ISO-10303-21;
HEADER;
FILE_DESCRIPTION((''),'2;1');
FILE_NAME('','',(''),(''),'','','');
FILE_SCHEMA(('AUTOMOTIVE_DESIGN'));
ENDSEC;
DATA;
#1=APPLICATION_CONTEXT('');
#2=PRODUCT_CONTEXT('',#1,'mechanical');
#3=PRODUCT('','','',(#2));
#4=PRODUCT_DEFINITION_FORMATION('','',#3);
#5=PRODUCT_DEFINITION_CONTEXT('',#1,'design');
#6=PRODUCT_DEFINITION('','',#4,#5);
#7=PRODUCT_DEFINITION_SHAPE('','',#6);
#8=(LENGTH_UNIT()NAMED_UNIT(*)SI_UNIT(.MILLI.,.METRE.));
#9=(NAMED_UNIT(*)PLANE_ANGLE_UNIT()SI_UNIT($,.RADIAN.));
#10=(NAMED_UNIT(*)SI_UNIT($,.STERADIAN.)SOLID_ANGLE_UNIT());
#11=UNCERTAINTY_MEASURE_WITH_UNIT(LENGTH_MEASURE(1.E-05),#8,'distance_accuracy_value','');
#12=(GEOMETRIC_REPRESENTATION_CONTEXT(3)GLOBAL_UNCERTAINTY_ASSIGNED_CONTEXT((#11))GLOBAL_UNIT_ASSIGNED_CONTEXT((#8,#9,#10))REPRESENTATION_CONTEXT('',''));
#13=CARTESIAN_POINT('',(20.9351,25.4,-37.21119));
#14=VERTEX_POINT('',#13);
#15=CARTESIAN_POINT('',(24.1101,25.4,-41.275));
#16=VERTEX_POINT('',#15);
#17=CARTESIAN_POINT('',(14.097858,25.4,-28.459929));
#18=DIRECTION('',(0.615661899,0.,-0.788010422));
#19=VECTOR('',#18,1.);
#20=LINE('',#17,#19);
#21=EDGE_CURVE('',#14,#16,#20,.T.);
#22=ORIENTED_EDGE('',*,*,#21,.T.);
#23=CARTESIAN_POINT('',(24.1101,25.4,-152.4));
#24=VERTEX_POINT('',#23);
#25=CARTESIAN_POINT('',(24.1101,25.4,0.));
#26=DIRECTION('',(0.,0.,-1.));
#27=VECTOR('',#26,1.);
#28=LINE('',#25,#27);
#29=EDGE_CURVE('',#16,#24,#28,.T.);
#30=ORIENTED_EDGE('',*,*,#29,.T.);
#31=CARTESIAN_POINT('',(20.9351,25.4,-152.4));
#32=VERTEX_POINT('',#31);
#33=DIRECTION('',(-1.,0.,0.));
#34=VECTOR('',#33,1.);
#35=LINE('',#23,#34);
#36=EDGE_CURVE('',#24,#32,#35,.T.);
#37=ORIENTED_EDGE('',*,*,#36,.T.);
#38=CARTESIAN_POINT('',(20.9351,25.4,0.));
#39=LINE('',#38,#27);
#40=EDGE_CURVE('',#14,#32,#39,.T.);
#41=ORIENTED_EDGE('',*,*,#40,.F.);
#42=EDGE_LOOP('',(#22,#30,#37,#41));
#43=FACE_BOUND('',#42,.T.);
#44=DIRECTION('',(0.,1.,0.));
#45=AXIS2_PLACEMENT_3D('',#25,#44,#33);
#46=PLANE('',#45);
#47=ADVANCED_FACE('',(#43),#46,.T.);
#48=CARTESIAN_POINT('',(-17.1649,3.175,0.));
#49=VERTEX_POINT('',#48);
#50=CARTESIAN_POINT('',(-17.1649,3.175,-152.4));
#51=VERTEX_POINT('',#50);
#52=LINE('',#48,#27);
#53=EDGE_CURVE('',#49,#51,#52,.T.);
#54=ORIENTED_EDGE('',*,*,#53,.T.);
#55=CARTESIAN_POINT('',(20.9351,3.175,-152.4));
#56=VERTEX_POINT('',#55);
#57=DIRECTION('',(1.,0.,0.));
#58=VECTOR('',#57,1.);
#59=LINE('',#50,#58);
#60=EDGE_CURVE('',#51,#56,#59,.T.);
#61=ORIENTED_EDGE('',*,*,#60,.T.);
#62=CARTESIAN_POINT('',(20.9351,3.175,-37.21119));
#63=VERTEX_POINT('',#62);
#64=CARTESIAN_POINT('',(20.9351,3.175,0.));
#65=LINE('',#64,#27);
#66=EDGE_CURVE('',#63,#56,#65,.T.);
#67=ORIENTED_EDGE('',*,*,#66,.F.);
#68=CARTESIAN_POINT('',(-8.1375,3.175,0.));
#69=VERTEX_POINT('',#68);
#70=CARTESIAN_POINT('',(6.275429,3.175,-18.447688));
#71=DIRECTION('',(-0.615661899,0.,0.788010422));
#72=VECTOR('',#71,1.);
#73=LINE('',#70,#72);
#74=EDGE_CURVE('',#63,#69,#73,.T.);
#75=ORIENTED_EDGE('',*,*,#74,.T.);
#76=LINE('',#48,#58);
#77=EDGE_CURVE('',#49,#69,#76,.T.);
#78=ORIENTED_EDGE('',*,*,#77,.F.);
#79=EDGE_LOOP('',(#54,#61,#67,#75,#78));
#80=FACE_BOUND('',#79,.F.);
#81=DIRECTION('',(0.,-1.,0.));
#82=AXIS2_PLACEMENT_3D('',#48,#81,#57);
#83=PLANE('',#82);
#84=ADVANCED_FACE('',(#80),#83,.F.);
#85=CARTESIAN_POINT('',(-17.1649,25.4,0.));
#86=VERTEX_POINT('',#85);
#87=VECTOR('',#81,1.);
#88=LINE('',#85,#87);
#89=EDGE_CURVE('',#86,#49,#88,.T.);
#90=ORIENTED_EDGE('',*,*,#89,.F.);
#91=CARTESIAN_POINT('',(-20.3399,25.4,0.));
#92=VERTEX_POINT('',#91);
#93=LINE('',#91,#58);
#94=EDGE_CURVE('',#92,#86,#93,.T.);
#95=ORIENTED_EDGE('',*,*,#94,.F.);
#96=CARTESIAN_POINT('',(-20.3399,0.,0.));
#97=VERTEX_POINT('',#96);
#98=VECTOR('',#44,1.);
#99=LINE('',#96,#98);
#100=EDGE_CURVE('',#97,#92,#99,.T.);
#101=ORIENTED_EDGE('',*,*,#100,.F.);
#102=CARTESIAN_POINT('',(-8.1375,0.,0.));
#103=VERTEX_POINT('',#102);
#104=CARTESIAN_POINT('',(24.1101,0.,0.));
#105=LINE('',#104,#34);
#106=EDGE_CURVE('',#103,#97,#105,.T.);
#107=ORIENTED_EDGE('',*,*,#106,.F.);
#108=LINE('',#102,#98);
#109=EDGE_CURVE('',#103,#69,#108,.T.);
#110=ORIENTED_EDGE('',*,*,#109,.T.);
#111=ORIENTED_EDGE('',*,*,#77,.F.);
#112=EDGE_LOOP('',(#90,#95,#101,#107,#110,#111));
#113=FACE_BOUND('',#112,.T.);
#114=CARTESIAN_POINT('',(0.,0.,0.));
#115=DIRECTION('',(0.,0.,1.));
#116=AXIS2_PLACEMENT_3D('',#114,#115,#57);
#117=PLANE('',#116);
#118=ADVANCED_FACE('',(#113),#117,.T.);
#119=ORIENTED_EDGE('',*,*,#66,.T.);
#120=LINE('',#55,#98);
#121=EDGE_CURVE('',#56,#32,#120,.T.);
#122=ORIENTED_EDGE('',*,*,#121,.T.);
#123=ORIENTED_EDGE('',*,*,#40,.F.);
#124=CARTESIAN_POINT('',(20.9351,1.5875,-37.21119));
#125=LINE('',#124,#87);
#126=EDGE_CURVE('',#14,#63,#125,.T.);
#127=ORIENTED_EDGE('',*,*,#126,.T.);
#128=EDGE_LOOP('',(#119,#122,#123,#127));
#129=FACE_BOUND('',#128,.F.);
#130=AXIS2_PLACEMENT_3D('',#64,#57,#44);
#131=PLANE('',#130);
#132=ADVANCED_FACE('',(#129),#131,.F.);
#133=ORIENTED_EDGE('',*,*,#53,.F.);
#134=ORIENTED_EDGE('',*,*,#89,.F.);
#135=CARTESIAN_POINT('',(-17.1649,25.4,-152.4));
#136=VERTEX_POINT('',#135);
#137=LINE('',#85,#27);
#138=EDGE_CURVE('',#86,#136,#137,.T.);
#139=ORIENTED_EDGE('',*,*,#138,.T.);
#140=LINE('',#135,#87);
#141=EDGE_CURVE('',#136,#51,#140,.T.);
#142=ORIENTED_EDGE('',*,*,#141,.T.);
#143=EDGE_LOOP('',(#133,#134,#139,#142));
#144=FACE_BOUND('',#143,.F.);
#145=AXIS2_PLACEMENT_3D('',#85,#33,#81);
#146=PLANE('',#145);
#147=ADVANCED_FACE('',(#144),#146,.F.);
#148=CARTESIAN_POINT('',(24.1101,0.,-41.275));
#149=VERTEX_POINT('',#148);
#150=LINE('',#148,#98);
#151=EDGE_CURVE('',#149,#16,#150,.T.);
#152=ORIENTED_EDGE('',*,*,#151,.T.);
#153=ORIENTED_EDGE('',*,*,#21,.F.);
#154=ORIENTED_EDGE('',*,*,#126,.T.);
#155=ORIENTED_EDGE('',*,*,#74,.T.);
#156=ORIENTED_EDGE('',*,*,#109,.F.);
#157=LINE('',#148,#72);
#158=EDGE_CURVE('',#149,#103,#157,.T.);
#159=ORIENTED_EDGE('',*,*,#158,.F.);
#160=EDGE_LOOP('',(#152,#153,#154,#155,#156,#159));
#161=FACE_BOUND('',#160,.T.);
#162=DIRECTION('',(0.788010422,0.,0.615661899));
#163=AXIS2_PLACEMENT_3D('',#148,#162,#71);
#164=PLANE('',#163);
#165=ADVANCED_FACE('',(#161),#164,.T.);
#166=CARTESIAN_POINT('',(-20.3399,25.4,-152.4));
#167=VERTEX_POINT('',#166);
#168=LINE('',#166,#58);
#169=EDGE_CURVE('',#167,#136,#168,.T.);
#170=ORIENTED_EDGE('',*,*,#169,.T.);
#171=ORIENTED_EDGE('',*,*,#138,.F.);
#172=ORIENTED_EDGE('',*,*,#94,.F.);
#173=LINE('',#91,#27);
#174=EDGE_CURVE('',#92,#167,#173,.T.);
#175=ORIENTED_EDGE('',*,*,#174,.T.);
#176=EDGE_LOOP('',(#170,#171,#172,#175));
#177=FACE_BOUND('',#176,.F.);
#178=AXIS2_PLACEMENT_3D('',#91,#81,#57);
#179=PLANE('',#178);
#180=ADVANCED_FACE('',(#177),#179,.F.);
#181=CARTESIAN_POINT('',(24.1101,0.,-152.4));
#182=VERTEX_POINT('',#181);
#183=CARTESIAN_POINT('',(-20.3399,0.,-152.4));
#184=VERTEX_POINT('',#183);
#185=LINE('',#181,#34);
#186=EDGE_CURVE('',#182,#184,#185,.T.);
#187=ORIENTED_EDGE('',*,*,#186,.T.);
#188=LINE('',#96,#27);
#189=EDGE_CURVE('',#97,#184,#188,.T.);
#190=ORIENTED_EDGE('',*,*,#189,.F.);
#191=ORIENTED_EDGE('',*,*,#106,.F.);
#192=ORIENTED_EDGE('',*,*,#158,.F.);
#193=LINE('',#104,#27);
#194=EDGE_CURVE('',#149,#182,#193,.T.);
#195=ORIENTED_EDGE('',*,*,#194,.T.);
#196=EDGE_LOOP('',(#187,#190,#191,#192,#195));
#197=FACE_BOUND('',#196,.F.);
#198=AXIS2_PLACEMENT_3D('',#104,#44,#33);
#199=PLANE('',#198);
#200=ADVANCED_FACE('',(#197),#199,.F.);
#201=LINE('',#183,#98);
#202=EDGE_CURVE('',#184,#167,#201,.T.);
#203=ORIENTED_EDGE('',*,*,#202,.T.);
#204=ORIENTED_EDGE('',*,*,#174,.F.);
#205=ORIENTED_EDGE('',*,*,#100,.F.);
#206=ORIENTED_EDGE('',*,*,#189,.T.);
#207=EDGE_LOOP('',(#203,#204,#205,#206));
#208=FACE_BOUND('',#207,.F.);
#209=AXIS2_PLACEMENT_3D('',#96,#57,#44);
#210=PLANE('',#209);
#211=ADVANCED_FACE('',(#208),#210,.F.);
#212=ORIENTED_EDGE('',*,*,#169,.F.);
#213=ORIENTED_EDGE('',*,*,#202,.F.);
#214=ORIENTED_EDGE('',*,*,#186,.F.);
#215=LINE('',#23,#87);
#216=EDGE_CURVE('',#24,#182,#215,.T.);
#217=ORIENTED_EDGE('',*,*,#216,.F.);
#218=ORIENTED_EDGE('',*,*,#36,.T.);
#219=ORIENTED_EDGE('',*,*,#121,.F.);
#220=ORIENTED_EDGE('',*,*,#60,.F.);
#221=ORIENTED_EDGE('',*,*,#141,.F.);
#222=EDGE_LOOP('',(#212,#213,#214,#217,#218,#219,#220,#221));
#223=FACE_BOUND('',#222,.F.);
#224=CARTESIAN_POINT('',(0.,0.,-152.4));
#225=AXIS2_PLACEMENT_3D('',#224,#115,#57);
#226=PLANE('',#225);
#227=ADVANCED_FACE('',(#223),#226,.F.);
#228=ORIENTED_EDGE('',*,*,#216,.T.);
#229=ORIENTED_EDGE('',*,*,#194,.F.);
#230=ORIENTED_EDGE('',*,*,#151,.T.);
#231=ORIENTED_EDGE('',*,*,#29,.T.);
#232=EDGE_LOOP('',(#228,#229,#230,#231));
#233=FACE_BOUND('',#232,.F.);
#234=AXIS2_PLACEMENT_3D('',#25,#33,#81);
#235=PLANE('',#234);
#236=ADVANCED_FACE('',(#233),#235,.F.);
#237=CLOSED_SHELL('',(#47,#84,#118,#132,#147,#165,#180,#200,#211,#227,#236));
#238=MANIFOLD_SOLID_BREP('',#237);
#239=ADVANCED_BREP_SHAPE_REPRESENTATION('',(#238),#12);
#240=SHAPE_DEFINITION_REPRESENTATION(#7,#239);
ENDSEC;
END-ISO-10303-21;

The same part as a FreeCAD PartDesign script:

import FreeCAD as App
import Part
import Sketcher
from FreeCAD import Vector
Q = App.Units.Quantity

doc = App.newDocument("Part")
body = doc.addObject("PartDesign::Body", "Body")

# Sketch on XY plane
sketch1 = body.newObject("Sketcher::SketchObject", "Sketch")
sketch1.AttachmentSupport = (doc.getObject("XY_Plane"), [""])
sketch1.MapMode = "FlatFace"
sketch1.addGeometry(Part.LineSegment(Vector(24.1, 0, 0), Vector(24.1, 25.4, 0)), False)
sketch1.addGeometry(Part.LineSegment(Vector(24.1, 25.4, 0), Vector(20.9, 25.4, 0)), False)
sketch1.addGeometry(Part.LineSegment(Vector(20.9, 25.4, 0), Vector(20.9, 3.2, 0)), False)
sketch1.addGeometry(Part.LineSegment(Vector(20.9, 3.2, 0), Vector(-17.2, 3.2, 0)), False)
sketch1.addGeometry(Part.LineSegment(Vector(-17.2, 3.2, 0), Vector(-17.2, 25.4, 0)), False)
sketch1.addGeometry(Part.LineSegment(Vector(-17.2, 25.4, 0), Vector(-20.3, 25.4, 0)), False)
sketch1.addGeometry(Part.LineSegment(Vector(-20.3, 25.4, 0), Vector(-20.3, 0, 0)), False)
sketch1.addGeometry(Part.LineSegment(Vector(-20.3, 0, 0), Vector(24.1, 0, 0)), False)
sketch1.addConstraint(Sketcher.Constraint("Coincident", 0, 2, 1, 1))
sketch1.addConstraint(Sketcher.Constraint("Coincident", 1, 2, 2, 1))
sketch1.addConstraint(Sketcher.Constraint("Coincident", 2, 2, 3, 1))
sketch1.addConstraint(Sketcher.Constraint("Coincident", 3, 2, 4, 1))
sketch1.addConstraint(Sketcher.Constraint("Coincident", 4, 2, 5, 1))
sketch1.addConstraint(Sketcher.Constraint("Coincident", 5, 2, 6, 1))
sketch1.addConstraint(Sketcher.Constraint("Coincident", 6, 2, 7, 1))
sketch1.addConstraint(Sketcher.Constraint("Coincident", 7, 2, 0, 1))
sketch1.addConstraint(Sketcher.Constraint("Vertical", 0))
sketch1.addConstraint(Sketcher.Constraint("Horizontal", 1))
sketch1.addConstraint(Sketcher.Constraint("Vertical", 2))
sketch1.addConstraint(Sketcher.Constraint("Horizontal", 3))
sketch1.addConstraint(Sketcher.Constraint("Vertical", 4))
sketch1.addConstraint(Sketcher.Constraint("Horizontal", 5))
sketch1.addConstraint(Sketcher.Constraint("Vertical", 6))
sketch1.addConstraint(Sketcher.Constraint("Horizontal", 7))
sketch1.addConstraint(Sketcher.Constraint("PointOnObject", 6, 2, -1))
sketch1.addConstraint(Sketcher.Constraint("Horizontal", 1, 2, 4, 2))
sketch1.addConstraint(Sketcher.Constraint("Equal", 1, 5))
sketch1.addConstraint(Sketcher.Constraint("DistanceY", 0, 1, 0, 2, Q("1 in")))
sketch1.addConstraint(Sketcher.Constraint("DistanceX", 7, 1, 7, 2, Q("1.75 in")))
sketch1.addConstraint(Sketcher.Constraint("DistanceX", 1, 2, 1, 1, Q("0.125 in")))
sketch1.addConstraint(Sketcher.Constraint("DistanceY", -1, 1, 2, 2, Q("0.125 in")))
sketch1.addConstraint(Sketcher.Constraint("DistanceX", -1, 1, 0, 2, 24.11))
pad1 = body.newObject("PartDesign::Pad", "Pad")
pad1.Profile = sketch1
pad1.Length = Q("6 in")
pad1.Reversed = True

# Sketch on XZ plane
sketch2 = body.newObject("Sketcher::SketchObject", "Sketch001")
sketch2.AttachmentSupport = (doc.getObject("XZ_Plane"), [""])
sketch2.MapMode = "FlatFace"
sketch2.addGeometry(Part.LineSegment(Vector(24, 0, 0), Vector(-8, 0, 0)), False)
sketch2.addGeometry(Part.LineSegment(Vector(-8, 0, 0), Vector(24, -41, 0)), False)
sketch2.addGeometry(Part.LineSegment(Vector(24, -41, 0), Vector(24, 0, 0)), False)
sketch2.addConstraint(Sketcher.Constraint("Coincident", 0, 2, 1, 1))
sketch2.addConstraint(Sketcher.Constraint("Coincident", 1, 2, 2, 1))
sketch2.addConstraint(Sketcher.Constraint("Coincident", 2, 2, 0, 1))
sketch2.addConstraint(Sketcher.Constraint("Horizontal", 0))
sketch2.addConstraint(Sketcher.Constraint("Vertical", 2))
sketch2.addConstraint(Sketcher.Constraint("PointOnObject", 0, 2, -1))
sketch2.addConstraint(Sketcher.Constraint("Angle", 1, Q("-52 deg")))
sketch2.addConstraint(Sketcher.Constraint("DistanceY", 2, 1, 2, 2, Q("1.625 in")))
sketch2.addConstraint(Sketcher.Constraint("DistanceX", 0, 2, -1, 1, 8.1375))
pocket1 = body.newObject("PartDesign::Pocket", "Pocket")
pocket1.Profile = sketch2
pocket1.Type = "ThroughAll"

doc.recompute()
